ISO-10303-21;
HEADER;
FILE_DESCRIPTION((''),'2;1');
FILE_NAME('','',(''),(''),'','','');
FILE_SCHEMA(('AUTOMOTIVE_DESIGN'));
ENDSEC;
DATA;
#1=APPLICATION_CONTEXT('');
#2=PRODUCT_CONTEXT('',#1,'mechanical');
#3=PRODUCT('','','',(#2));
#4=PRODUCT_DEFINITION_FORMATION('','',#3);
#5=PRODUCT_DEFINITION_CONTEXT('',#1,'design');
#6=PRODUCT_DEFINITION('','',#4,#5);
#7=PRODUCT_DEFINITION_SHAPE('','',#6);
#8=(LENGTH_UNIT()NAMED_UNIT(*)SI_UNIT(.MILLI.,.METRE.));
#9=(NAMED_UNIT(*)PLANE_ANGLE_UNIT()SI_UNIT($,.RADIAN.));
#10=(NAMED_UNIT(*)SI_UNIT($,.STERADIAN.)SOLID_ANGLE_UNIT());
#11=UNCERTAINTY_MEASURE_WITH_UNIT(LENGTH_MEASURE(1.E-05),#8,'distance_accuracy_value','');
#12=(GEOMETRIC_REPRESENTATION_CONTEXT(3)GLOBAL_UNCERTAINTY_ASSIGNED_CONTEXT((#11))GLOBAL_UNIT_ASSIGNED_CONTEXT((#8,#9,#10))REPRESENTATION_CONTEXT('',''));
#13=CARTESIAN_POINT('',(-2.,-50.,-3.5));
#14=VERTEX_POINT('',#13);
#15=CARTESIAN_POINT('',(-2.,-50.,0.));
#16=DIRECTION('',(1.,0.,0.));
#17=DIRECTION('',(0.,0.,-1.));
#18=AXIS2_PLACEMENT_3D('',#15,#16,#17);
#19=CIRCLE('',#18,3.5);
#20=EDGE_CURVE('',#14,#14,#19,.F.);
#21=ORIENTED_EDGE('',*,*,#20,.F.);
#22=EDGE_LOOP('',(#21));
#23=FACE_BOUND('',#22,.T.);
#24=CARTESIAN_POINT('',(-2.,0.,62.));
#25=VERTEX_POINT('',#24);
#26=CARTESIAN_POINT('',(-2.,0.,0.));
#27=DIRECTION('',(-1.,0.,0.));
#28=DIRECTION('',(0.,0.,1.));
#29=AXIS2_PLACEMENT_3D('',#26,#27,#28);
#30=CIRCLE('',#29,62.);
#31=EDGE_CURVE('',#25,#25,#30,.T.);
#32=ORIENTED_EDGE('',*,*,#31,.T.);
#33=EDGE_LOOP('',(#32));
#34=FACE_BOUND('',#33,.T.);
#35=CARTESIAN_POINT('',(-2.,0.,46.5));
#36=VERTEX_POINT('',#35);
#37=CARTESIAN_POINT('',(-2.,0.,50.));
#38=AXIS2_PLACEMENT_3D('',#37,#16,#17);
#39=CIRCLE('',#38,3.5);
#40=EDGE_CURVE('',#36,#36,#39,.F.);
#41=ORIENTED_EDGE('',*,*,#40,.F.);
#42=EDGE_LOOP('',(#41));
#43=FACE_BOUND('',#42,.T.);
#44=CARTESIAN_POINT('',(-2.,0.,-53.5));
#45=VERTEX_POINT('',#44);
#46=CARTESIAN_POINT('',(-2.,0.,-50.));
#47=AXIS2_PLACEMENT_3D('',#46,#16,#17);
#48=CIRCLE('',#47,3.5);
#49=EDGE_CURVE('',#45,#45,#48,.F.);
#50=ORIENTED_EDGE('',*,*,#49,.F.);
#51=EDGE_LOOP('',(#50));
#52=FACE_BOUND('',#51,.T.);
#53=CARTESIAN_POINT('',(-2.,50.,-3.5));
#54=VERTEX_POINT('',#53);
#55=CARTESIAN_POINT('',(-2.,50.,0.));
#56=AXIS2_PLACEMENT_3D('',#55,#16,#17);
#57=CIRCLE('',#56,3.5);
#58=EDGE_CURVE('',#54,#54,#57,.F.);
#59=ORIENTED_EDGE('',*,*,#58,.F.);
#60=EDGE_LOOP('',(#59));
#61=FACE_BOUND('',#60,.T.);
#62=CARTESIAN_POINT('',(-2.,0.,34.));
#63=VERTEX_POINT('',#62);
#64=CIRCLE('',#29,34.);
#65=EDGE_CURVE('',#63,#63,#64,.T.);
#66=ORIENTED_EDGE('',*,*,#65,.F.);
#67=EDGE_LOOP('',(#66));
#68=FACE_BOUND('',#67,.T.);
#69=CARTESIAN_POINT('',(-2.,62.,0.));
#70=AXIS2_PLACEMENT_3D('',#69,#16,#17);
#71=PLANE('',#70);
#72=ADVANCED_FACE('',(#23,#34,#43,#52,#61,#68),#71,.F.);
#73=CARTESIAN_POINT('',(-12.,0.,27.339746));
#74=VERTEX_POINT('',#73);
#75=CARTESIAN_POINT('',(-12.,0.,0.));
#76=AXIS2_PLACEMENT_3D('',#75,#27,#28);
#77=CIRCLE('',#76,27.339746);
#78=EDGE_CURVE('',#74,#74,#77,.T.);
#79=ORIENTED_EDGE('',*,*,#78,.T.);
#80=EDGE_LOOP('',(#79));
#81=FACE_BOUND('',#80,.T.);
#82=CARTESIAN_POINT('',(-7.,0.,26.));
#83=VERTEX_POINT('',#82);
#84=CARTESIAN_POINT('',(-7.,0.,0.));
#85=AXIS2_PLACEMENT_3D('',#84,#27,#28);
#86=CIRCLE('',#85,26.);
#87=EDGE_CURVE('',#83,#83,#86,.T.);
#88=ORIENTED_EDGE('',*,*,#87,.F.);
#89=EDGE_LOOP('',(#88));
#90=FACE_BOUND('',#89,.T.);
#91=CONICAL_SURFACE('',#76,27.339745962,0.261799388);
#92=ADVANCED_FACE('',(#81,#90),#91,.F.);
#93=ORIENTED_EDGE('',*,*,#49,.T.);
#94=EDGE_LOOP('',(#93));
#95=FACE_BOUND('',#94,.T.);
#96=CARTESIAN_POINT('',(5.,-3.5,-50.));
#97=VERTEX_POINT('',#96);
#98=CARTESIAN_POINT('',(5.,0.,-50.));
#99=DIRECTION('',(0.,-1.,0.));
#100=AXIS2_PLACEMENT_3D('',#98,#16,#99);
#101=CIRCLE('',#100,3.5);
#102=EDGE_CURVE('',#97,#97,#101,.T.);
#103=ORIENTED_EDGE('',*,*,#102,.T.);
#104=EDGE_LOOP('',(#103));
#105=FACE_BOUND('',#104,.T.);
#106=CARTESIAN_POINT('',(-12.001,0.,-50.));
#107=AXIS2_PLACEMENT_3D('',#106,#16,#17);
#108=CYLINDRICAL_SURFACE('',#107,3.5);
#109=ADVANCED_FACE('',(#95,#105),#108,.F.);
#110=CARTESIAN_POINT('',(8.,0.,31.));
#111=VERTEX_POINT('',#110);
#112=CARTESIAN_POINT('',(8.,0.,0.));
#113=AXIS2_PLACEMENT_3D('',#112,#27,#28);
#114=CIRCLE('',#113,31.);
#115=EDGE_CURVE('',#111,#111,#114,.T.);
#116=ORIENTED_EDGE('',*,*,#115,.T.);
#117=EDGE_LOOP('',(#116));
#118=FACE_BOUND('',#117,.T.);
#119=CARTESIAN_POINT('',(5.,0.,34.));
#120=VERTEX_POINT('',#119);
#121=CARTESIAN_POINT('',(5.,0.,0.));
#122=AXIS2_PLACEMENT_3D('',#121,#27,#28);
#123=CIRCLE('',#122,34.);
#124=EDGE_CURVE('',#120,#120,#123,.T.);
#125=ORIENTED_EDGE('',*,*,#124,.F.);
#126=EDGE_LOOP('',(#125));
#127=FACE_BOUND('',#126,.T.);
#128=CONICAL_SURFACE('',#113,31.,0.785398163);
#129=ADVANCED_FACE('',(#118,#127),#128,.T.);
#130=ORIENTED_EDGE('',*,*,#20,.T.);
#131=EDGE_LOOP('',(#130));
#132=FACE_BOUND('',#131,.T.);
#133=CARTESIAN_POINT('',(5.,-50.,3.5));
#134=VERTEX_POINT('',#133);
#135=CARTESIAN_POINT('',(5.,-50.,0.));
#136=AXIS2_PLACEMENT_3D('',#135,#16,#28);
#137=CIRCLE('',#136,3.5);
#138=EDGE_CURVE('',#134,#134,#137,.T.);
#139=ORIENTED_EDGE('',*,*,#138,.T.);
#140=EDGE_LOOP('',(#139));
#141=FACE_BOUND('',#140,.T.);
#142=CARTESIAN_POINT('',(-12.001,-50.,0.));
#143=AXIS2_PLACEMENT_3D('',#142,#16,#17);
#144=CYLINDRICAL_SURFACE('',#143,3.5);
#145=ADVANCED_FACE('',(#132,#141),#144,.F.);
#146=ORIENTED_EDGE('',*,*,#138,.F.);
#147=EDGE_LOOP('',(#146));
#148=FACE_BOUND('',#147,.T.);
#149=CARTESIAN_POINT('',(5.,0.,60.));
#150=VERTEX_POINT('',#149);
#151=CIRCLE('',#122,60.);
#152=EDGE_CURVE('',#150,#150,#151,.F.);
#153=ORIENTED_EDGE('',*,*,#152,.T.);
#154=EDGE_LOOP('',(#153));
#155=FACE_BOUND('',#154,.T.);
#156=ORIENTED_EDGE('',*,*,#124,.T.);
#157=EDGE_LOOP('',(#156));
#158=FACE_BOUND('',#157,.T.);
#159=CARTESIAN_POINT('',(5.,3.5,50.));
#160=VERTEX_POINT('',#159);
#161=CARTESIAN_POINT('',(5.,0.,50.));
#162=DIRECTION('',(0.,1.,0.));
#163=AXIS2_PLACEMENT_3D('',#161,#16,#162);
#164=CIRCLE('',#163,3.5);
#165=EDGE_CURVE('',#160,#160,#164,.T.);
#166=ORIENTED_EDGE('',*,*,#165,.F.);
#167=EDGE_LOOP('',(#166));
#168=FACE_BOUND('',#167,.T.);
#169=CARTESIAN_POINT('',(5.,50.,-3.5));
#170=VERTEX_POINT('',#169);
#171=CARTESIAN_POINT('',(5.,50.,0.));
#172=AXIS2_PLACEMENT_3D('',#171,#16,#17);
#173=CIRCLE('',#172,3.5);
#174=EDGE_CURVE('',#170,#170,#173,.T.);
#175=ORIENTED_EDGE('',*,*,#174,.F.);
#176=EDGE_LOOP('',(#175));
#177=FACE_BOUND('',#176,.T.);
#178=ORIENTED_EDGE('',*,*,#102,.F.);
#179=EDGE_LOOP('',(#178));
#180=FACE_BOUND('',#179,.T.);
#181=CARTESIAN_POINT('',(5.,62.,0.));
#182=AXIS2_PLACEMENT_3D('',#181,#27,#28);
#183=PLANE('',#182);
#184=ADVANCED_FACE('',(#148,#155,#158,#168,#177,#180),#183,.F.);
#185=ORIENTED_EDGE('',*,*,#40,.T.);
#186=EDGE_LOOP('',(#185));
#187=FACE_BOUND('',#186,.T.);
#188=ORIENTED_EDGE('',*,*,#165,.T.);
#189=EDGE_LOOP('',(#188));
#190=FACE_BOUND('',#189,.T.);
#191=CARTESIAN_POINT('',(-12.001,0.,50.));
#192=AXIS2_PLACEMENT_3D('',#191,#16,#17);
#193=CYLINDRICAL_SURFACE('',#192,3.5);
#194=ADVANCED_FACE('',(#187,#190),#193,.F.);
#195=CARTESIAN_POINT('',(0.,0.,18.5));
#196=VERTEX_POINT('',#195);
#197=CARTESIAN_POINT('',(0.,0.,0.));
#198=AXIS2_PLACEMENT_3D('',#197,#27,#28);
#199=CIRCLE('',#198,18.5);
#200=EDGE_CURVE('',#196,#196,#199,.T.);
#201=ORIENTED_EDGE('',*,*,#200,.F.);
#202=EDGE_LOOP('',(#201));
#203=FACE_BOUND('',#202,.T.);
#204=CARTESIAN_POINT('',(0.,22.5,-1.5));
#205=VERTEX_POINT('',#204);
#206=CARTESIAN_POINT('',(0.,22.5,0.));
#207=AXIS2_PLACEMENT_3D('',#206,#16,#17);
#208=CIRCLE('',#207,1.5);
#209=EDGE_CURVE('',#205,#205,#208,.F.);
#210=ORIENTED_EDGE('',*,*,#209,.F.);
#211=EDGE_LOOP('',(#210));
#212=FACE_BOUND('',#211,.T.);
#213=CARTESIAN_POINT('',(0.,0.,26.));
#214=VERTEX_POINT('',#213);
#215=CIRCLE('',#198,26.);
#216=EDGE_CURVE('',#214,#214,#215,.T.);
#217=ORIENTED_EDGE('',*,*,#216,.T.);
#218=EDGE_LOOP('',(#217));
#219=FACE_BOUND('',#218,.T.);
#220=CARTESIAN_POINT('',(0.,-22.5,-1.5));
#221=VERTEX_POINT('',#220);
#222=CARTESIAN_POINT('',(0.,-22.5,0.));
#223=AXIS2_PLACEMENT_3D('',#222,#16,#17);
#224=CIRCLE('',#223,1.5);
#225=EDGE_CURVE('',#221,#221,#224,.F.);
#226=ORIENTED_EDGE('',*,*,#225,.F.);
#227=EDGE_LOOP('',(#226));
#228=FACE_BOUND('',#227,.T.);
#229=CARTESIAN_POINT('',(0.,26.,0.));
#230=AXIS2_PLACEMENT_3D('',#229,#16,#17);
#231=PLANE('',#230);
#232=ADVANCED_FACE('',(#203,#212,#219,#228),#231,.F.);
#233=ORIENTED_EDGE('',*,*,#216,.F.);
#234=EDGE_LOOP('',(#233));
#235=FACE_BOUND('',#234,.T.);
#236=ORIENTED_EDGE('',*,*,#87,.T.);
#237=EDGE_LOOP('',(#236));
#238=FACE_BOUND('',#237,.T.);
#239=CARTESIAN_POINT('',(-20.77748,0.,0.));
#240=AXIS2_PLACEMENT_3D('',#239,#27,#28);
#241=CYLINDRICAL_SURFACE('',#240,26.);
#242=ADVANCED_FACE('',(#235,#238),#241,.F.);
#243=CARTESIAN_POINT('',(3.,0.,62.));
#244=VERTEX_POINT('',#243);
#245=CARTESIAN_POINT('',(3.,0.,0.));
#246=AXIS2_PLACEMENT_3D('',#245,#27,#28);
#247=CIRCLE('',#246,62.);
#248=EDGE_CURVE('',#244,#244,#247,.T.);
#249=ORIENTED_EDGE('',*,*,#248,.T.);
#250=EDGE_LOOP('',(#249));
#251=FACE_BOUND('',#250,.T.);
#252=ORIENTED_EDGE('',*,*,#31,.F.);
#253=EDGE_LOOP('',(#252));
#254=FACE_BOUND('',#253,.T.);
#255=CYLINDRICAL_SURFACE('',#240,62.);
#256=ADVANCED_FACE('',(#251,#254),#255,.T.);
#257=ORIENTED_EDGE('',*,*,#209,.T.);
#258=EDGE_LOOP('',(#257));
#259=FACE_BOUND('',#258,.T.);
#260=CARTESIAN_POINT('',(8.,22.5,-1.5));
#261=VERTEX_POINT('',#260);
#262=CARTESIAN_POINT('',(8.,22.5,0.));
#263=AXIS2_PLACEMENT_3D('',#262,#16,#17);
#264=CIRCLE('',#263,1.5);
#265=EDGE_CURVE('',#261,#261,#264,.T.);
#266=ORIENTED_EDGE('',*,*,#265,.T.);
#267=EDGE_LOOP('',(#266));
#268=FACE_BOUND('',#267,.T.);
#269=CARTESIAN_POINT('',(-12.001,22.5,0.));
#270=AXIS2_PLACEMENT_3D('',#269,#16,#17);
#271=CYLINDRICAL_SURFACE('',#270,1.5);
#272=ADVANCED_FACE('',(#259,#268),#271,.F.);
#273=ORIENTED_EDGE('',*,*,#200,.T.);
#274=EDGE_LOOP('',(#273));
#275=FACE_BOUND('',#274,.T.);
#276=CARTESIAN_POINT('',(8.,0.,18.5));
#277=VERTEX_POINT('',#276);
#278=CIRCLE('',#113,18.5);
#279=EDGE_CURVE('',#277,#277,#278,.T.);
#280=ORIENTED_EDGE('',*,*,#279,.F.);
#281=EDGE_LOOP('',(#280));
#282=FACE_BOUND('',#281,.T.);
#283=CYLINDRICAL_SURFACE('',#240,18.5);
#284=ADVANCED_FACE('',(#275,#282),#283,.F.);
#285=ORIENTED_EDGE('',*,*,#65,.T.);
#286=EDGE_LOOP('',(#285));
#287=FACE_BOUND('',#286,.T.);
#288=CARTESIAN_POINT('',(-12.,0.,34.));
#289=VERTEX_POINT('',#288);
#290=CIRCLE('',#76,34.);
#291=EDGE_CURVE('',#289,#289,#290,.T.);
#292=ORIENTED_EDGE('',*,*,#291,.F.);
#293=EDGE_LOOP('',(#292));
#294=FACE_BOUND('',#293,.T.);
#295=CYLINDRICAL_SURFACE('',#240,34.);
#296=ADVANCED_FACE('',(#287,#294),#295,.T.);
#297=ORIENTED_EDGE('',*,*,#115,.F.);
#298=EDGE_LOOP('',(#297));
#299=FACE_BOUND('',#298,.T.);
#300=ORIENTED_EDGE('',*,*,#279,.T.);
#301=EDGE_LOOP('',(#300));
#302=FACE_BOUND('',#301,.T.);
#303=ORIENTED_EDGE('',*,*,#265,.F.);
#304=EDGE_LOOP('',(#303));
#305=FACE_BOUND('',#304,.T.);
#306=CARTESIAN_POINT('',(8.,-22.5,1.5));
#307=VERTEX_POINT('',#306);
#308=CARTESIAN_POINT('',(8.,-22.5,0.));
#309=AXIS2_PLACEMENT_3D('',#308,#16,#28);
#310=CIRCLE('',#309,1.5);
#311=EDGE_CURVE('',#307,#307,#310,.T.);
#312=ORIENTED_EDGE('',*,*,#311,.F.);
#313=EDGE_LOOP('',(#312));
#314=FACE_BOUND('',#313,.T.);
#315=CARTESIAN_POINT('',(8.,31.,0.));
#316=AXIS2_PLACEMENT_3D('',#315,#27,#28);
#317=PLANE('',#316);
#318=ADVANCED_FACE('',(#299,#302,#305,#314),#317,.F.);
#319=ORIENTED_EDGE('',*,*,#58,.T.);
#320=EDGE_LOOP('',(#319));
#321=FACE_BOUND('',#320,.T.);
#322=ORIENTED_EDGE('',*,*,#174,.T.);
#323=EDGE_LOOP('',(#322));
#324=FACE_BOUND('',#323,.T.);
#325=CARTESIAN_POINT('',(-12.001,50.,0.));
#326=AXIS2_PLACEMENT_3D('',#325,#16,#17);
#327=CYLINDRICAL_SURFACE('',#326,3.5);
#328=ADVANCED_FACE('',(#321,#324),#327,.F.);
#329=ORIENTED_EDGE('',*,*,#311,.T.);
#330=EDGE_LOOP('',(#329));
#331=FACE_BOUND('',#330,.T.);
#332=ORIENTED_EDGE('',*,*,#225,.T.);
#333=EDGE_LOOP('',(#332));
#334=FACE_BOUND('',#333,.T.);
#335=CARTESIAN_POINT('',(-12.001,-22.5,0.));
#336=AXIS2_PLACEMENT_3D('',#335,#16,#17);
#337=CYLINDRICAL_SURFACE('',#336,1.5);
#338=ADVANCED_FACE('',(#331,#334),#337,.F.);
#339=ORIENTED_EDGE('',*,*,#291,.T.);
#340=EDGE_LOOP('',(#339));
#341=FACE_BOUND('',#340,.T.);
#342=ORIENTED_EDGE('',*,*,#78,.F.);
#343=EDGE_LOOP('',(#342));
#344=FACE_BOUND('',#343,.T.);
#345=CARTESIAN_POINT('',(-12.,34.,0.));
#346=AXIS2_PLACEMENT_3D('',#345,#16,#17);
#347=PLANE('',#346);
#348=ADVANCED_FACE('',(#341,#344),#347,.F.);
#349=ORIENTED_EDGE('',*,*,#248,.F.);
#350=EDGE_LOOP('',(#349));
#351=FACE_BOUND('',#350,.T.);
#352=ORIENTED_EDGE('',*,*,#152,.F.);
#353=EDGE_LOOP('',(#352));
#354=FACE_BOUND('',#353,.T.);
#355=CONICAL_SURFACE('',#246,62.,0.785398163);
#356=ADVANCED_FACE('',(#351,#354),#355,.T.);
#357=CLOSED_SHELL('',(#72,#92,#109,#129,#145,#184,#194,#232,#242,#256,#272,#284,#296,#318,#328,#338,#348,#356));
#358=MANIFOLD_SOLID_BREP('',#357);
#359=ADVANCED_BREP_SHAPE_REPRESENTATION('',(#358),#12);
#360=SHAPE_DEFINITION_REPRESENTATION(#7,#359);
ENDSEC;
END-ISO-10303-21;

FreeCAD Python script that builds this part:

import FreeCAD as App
import Part
import Sketcher
Q = App.Units.Quantity


def edges_at(feature, points):
    """Names of the edges that pass closest to the given points."""
    edges = feature.Shape.Edges
    near = lambda p: min(range(len(edges)), key=lambda i: edges[i].distToShape(Part.Vertex(*p))[0])
    return sorted({f"Edge{near(p) + 1}" for p in points})

doc = App.newDocument("Part")
body = doc.addObject("PartDesign::Body", "Body")

# Sketch on XY plane
sketch1 = body.newObject("Sketcher::SketchObject", "Sketch")
sketch1.AttachmentSupport = (doc.getObject("XY_Plane"), [""])
sketch1.MapMode = "FlatFace"
sketch1.addGeometry(Part.LineSegment(App.Vector(-2, 62, 0), App.Vector(-2, 34, 0)), False)
sketch1.addGeometry(Part.LineSegment(App.Vector(-2, 34, 0), App.Vector(-12, 34, 0)), False)
sketch1.addGeometry(Part.LineSegment(App.Vector(-12, 34, 0), App.Vector(-12, 27.3, 0)), False)
sketch1.addGeometry(Part.LineSegment(App.Vector(-12, 27.3, 0), App.Vector(-7, 26, 0)), False)
sketch1.addGeometry(Part.LineSegment(App.Vector(-7, 26, 0), App.Vector(0, 26, 0)), False)
sketch1.addGeometry(Part.LineSegment(App.Vector(0, 26, 0), App.Vector(0, 18.5, 0)), False)
sketch1.addGeometry(Part.LineSegment(App.Vector(0, 18.5, 0), App.Vector(8, 18.5, 0)), False)
sketch1.addGeometry(Part.LineSegment(App.Vector(8, 18.5, 0), App.Vector(8, 31, 0)), False)
sketch1.addGeometry(Part.LineSegment(App.Vector(8, 31, 0), App.Vector(5, 34, 0)), False)
sketch1.addGeometry(Part.LineSegment(App.Vector(5, 34, 0), App.Vector(5, 62, 0)), False)
sketch1.addGeometry(Part.LineSegment(App.Vector(5, 62, 0), App.Vector(-2, 62, 0)), False)
sketch1.addConstraint(Sketcher.Constraint("Coincident", 0, 2, 1, 1))
sketch1.addConstraint(Sketcher.Constraint("Coincident", 1, 2, 2, 1))
sketch1.addConstraint(Sketcher.Constraint("Coincident", 2, 2, 3, 1))
sketch1.addConstraint(Sketcher.Constraint("Coincident", 3, 2, 4, 1))
sketch1.addConstraint(Sketcher.Constraint("Coincident", 4, 2, 5, 1))
sketch1.addConstraint(Sketcher.Constraint("Coincident", 5, 2, 6, 1))
sketch1.addConstraint(Sketcher.Constraint("Coincident", 6, 2, 7, 1))
sketch1.addConstraint(Sketcher.Constraint("Coincident", 7, 2, 8, 1))
sketch1.addConstraint(Sketcher.Constraint("Coincident", 8, 2, 9, 1))
sketch1.addConstraint(Sketcher.Constraint("Coincident", 9, 2, 10, 1))
sketch1.addConstraint(Sketcher.Constraint("Coincident", 10, 2, 0, 1))
sketch1.addConstraint(Sketcher.Constraint("Vertical", 0))
sketch1.addConstraint(Sketcher.Constraint("Horizontal", 1))
sketch1.addConstraint(Sketcher.Constraint("Vertical", 2))
sketch1.addConstraint(Sketcher.Constraint("Horizontal", 4))
sketch1.addConstraint(Sketcher.Constraint("Vertical", 5))
sketch1.addConstraint(Sketcher.Constraint("Horizontal", 6))
sketch1.addConstraint(Sketcher.Constraint("Vertical", 7))
sketch1.addConstraint(Sketcher.Constraint("Vertical", 9))
sketch1.addConstraint(Sketcher.Constraint("Horizontal", 10))
sketch1.addConstraint(Sketcher.Constraint("PointOnObject", 4, 2, -2))
sketch1.addConstraint(Sketcher.Constraint("Horizontal", 1, 2, 8, 2))
sketch1.addConstraint(Sketcher.Constraint("Equal", 4, 10))
sketch1.addConstraint(Sketcher.Constraint("DistanceX", 1, 2, 1, 1, 10.0))
sketch1.addConstraint(Sketcher.Constraint("DistanceX", 4, 1, 4, 2, 7.0))
sketch1.addConstraint(Sketcher.Constraint("DistanceX", 6, 1, 6, 2, 8.0))
sketch1.addConstraint(Sketcher.Constraint("DistanceY", 0, 2, 0, 1, 28.0))
sketch1.addConstraint(Sketcher.Constraint("Angle", 3, Q("-15 deg")))
sketch1.addConstraint(Sketcher.Constraint("Angle", 8, Q("135 deg")))
sketch1.addConstraint(Sketcher.Constraint("DistanceY", 5, 2, 5, 1, 7.5))
sketch1.addConstraint(Sketcher.Constraint("DistanceY", 7, 1, 7, 2, 12.5))
sketch1.addConstraint(Sketcher.Constraint("DistanceX", 0, 2, -1, 1, 2.0))
sketch1.addConstraint(Sketcher.Constraint("DistanceY", -1, 1, 0, 2, 34.0))
revolution = body.newObject("PartDesign::Revolution", "Revolution")
revolution.Profile = sketch1
revolution.ReferenceAxis = (sketch1, ["H_Axis"])
revolution.Angle = 360
doc.recompute()

chamfer = body.newObject("PartDesign::Chamfer", "Chamfer")
chamfer.Base = (revolution, edges_at(revolution, [(5, -62, 0)]))
chamfer.Size = 2

# Sketch on YZ plane
sketch2 = body.newObject("Sketcher::SketchObject", "Sketch001")
sketch2.AttachmentSupport = (doc.getObject("YZ_Plane"), [""])
sketch2.MapMode = "FlatFace"
sketch2.AttachmentOffset = App.Placement(App.Vector(0, 0, 8), App.Rotation())
sketch2.addGeometry(Part.Circle(App.Vector(22.5, 0, 0), App.Vector(0, 0, 1), 1.5), False)
sketch2.addConstraint(Sketcher.Constraint("PointOnObject", 0, 3, -1))
sketch2.addConstraint(Sketcher.Constraint("Diameter", 0, 3.0))
sketch2.addConstraint(Sketcher.Constraint("DistanceX", -1, 1, 0, 3, 22.5))
pocket1 = body.newObject("PartDesign::Pocket", "Pocket")
pocket1.Profile = sketch2
pocket1.Length = 8
doc.recompute()

polarpattern = body.newObject("PartDesign::PolarPattern", "PolarPattern")
polarpattern.Originals = [pocket1]
polarpattern.Axis = (doc.getObject("X_Axis"), [""])
polarpattern.Angle = 360
polarpattern.Occurrences = 2
body.Tip = polarpattern

# Sketch on YZ plane
sketch3 = body.newObject("Sketcher::SketchObject", "Sketch002")
sketch3.AttachmentSupport = (doc.getObject("YZ_Plane"), [""])
sketch3.MapMode = "FlatFace"
sketch3.AttachmentOffset = App.Placement(App.Vector(0, 0, 5), App.Rotation())
sketch3.addGeometry(Part.Circle(App.Vector(50, 0, 0), App.Vector(0, 0, 1), 3.5), False)
sketch3.addConstraint(Sketcher.Constraint("PointOnObject", 0, 3, -1))
sketch3.addConstraint(Sketcher.Constraint("Diameter", 0, 7.0))
sketch3.addConstraint(Sketcher.Constraint("DistanceX", -1, 1, 0, 3, 50.0))
pocket2 = body.newObject("PartDesign::Pocket", "Pocket001")
pocket2.Profile = sketch3
pocket2.Length = 7
doc.recompute()

polarpattern2 = body.newObject("PartDesign::PolarPattern", "PolarPattern001")
polarpattern2.Originals = [pocket2]
polarpattern2.Axis = (doc.getObject("X_Axis"), [""])
polarpattern2.Angle = 360
polarpattern2.Occurrences = 4
body.Tip = polarpattern2

doc.recompute()
